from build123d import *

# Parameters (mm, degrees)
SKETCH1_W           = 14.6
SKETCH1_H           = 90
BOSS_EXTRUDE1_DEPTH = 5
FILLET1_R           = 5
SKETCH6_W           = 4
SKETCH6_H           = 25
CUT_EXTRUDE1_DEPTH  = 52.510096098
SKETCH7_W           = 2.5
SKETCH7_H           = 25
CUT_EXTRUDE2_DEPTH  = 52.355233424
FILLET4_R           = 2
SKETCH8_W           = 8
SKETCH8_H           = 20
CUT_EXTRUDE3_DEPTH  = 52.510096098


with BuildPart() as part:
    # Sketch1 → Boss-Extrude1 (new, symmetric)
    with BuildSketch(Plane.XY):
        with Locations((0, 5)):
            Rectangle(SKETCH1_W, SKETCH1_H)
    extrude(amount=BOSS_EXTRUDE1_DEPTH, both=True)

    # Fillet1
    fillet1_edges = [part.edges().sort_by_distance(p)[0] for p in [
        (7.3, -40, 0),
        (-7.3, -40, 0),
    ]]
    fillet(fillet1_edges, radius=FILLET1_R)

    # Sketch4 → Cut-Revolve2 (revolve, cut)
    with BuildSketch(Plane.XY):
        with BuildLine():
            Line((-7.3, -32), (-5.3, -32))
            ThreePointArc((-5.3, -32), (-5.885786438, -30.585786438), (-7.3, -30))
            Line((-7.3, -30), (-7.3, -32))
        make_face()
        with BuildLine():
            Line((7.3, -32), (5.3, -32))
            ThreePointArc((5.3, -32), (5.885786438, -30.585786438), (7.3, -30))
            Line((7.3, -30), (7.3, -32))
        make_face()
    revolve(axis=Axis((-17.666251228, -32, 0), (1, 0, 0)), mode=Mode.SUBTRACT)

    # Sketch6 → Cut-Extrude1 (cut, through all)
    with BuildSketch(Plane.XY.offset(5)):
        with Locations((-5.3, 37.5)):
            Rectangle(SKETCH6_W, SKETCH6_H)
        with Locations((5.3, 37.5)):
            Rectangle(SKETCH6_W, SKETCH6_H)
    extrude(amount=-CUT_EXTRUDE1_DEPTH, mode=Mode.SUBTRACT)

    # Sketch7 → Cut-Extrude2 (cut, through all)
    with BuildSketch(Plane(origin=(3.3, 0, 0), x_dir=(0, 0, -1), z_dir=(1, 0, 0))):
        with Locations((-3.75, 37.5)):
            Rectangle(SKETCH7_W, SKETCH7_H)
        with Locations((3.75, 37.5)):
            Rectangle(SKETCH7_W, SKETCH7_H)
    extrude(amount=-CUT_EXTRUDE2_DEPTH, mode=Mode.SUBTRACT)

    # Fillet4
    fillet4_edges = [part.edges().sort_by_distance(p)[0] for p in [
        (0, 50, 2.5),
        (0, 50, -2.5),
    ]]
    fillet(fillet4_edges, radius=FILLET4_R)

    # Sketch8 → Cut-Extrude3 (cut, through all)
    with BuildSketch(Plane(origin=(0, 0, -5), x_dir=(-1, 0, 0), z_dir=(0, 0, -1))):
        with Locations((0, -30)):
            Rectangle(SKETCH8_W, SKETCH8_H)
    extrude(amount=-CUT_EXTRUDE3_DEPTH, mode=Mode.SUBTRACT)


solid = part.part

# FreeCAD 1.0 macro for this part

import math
import FreeCAD as App
import Part
import Sketcher
Q = App.Units.Quantity


def edges_at(feature, points):
    """Names of the edges that pass closest to the given points."""
    edges = feature.Shape.Edges
    near = lambda p: min(range(len(edges)), key=lambda i: edges[i].distToShape(Part.Vertex(*p))[0])
    return sorted({f"Edge{near(p) + 1}" for p in points})

doc = App.newDocument("Part")
body = doc.addObject("PartDesign::Body", "Body")

sketch1 = body.newObject("Sketcher::SketchObject", "Sketch")
sketch1.AttachmentSupport = (doc.getObject("XY_Plane"), [""])
sketch1.MapMode = "FlatFace"
sketch1.addGeometry(Part.LineSegment(App.Vector(-7.3, 50, 0), App.Vector(-7.3, -40, 0)), False)
sketch1.addGeometry(Part.LineSegment(App.Vector(-7.3, -40, 0), App.Vector(7.3, -40, 0)), False)
sketch1.addGeometry(Part.LineSegment(App.Vector(7.3, -40, 0), App.Vector(7.3, 50, 0)), False)
sketch1.addGeometry(Part.LineSegment(App.Vector(7.3, 50, 0), App.Vector(-7.3, 50, 0)), False)
sketch1.addConstraint(Sketcher.Constraint("Coincident", 0, 2, 1, 1))
sketch1.addConstraint(Sketcher.Constraint("Coincident", 1, 2, 2, 1))
sketch1.addConstraint(Sketcher.Constraint("Coincident", 2, 2, 3, 1))
sketch1.addConstraint(Sketcher.Constraint("Coincident", 3, 2, 0, 1))
sketch1.addConstraint(Sketcher.Constraint("Vertical", 0))
sketch1.addConstraint(Sketcher.Constraint("Horizontal", 1))
sketch1.addConstraint(Sketcher.Constraint("Vertical", 2))
sketch1.addConstraint(Sketcher.Constraint("Horizontal", 3))
sketch1.addConstraint(Sketcher.Constraint("DistanceY", 0, 2, 0, 1, Q("90 mm")))
sketch1.addConstraint(Sketcher.Constraint("DistanceX", 1, 1, 1, 2, Q("14.6 mm")))
sketch1.addConstraint(Sketcher.Constraint("DistanceY", 0, 2, -1, 1, Q("40 mm")))
sketch1.addConstraint(Sketcher.Constraint("DistanceX", 0, 2, -1, 1, Q("7.3 mm")))
pad1 = body.newObject("PartDesign::Pad", "Pad")
pad1.Profile = sketch1
pad1.Length = 10
pad1.Midplane = True
doc.recompute()

fillet = body.newObject("PartDesign::Fillet", "Fillet")
fillet.Base = (pad1, edges_at(pad1, [(7.3, -40, 0), (-7.3, -40, 0)]))
fillet.Radius = 5

sketch2 = body.newObject("Sketcher::SketchObject", "Sketch001")
sketch2.AttachmentSupport = (doc.getObject("XY_Plane"), [""])
sketch2.MapMode = "FlatFace"
sketch2.addGeometry(Part.LineSegment(App.Vector(-7.3, -32, 0), App.Vector(-5.3, -32, 0)), False)
sketch2.addGeometry(Part.ArcOfCircle(Part.Circle(App.Vector(-7.3, -32, 0), App.Vector(0, 0, 1), 2), math.radians(0), math.radians(90)), False)
sketch2.addGeometry(Part.LineSegment(App.Vector(-7.3, -30, 0), App.Vector(-7.3, -32, 0)), False)
sketch2.addGeometry(Part.LineSegment(App.Vector(5.3, -32, 0), App.Vector(7.3, -32, 0)), False)
sketch2.addGeometry(Part.LineSegment(App.Vector(7.3, -32, 0), App.Vector(7.3, -30, 0)), False)
sketch2.addGeometry(Part.ArcOfCircle(Part.Circle(App.Vector(7.3, -32, 0), App.Vector(0, 0, 1), 2), math.radians(90), math.radians(180)), False)
sketch2.addGeometry(Part.LineSegment(App.Vector(-7.3, -32, 0), App.Vector(7.3, -32, 0)), True)
sketch2.addConstraint(Sketcher.Constraint("Coincident", 0, 2, 1, 1))
sketch2.addConstraint(Sketcher.Constraint("Coincident", 1, 2, 2, 1))
sketch2.addConstraint(Sketcher.Constraint("Coincident", 2, 2, 0, 1))
sketch2.addConstraint(Sketcher.Constraint("Coincident", 3, 2, 4, 1))
sketch2.addConstraint(Sketcher.Constraint("Coincident", 4, 2, 5, 1))
sketch2.addConstraint(Sketcher.Constraint("Coincident", 5, 2, 3, 1))
sketch2.addConstraint(Sketcher.Constraint("Horizontal", 0))
sketch2.addConstraint(Sketcher.Constraint("Vertical", 2))
sketch2.addConstraint(Sketcher.Constraint("Horizontal", 3))
sketch2.addConstraint(Sketcher.Constraint("Vertical", 4))
sketch2.addConstraint(Sketcher.Constraint("Horizontal", 6))
sketch2.addConstraint(Sketcher.Constraint("Coincident", 2, 2, 1, 3))
sketch2.addConstraint(Sketcher.Constraint("Coincident", 3, 2, 5, 3))
sketch2.addConstraint(Sketcher.Constraint("Coincident", 6, 1, 1, 3))
sketch2.addConstraint(Sketcher.Constraint("Coincident", 6, 2, 5, 3))
sketch2.addConstraint(Sketcher.Constraint("Equal", 1, 5))
sketch2.addConstraint(Sketcher.Constraint("Radius", 1, Q("2 mm")))
sketch2.addConstraint(Sketcher.Constraint("DistanceX", 6, 1, 6, 2, Q("14.6 mm")))
sketch2.addConstraint(Sketcher.Constraint("DistanceY", 1, 3, -1, 1, Q("32 mm")))
sketch2.addConstraint(Sketcher.Constraint("DistanceX", 1, 3, -1, 1, Q("7.3 mm")))
groove = body.newObject("PartDesign::Groove", "Groove")
groove.Profile = sketch2
groove.ReferenceAxis = (sketch2, ["Axis0"])
groove.Angle = 360

sketch3 = body.newObject("Sketcher::SketchObject", "Sketch002")
sketch3.AttachmentSupport = (doc.getObject("XY_Plane"), [""])
sketch3.MapMode = "FlatFace"
sketch3.AttachmentOffset = App.Placement(App.Vector(0, 0, 5), App.Rotation())
sketch3.addGeometry(Part.LineSegment(App.Vector(-7.3, 50, 0), App.Vector(-7.3, 25, 0)), False)
sketch3.addGeometry(Part.LineSegment(App.Vector(-7.3, 25, 0), App.Vector(-3.3, 25, 0)), False)
sketch3.addGeometry(Part.LineSegment(App.Vector(-3.3, 25, 0), App.Vector(-3.3, 50, 0)), False)
sketch3.addGeometry(Part.LineSegment(App.Vector(-3.3, 50, 0), App.Vector(-7.3, 50, 0)), False)
sketch3.addGeometry(Part.LineSegment(App.Vector(3.3, 50, 0), App.Vector(3.3, 25, 0)), False)
sketch3.addGeometry(Part.LineSegment(App.Vector(3.3, 25, 0), App.Vector(7.3, 25, 0)), False)
sketch3.addGeometry(Part.LineSegment(App.Vector(7.3, 25, 0), App.Vector(7.3, 50, 0)), False)
sketch3.addGeometry(Part.LineSegment(App.Vector(7.3, 50, 0), App.Vector(3.3, 50, 0)), False)
sketch3.addConstraint(Sketcher.Constraint("Coincident", 0, 2, 1, 1))
sketch3.addConstraint(Sketcher.Constraint("Coincident", 1, 2, 2, 1))
sketch3.addConstraint(Sketcher.Constraint("Coincident", 2, 2, 3, 1))
sketch3.addConstraint(Sketcher.Constraint("Coincident", 3, 2, 0, 1))
sketch3.addConstraint(Sketcher.Constraint("Coincident", 4, 2, 5, 1))
sketch3.addConstraint(Sketcher.Constraint("Coincident", 5, 2, 6, 1))
sketch3.addConstraint(Sketcher.Constraint("Coincident", 6, 2, 7, 1))
sketch3.addConstraint(Sketcher.Constraint("Coincident", 7, 2, 4, 1))
sketch3.addConstraint(Sketcher.Constraint("Vertical", 0))
sketch3.addConstraint(Sketcher.Constraint("Horizontal", 1))
sketch3.addConstraint(Sketcher.Constraint("Vertical", 2))
sketch3.addConstraint(Sketcher.Constraint("Horizontal", 3))
sketch3.addConstraint(Sketcher.Constraint("Vertical", 4))
sketch3.addConstraint(Sketcher.Constraint("Horizontal", 5))
sketch3.addConstraint(Sketcher.Constraint("Vertical", 6))
sketch3.addConstraint(Sketcher.Constraint("Horizontal", 7))
sketch3.addConstraint(Sketcher.Constraint("Symmetric", 1, 2, 4, 2, -2))
sketch3.addConstraint(Sketcher.Constraint("Symmetric", 3, 2, 6, 2, -2))
sketch3.addConstraint(Sketcher.Constraint("DistanceX", 1, 1, 1, 2, Q("4 mm")))
sketch3.addConstraint(Sketcher.Constraint("DistanceY", 0, 2, 0, 1, Q("25 mm")))
sketch3.addConstraint(Sketcher.Constraint("DistanceY", -1, 1, 0, 2, Q("25 mm")))
sketch3.addConstraint(Sketcher.Constraint("DistanceX", 0, 2, -1, 1, Q("7.3 mm")))
pocket1 = body.newObject("PartDesign::Pocket", "Pocket")
pocket1.Profile = sketch3
pocket1.Type = "ThroughAll"

sketch4 = body.newObject("Sketcher::SketchObject", "Sketch003")
sketch4.AttachmentSupport = (doc.getObject("YZ_Plane"), [""])
sketch4.MapMode = "FlatFace"
sketch4.AttachmentOffset = App.Placement(App.Vector(0, 0, 3.3), App.Rotation())
sketch4.addGeometry(Part.LineSegment(App.Vector(50, 5, 0), App.Vector(25, 5, 0)), False)
sketch4.addGeometry(Part.LineSegment(App.Vector(25, 5, 0), App.Vector(25, 2.5, 0)), False)
sketch4.addGeometry(Part.LineSegment(App.Vector(25, 2.5, 0), App.Vector(50, 2.5, 0)), False)
sketch4.addGeometry(Part.LineSegment(App.Vector(50, 2.5, 0), App.Vector(50, 5, 0)), False)
sketch4.addGeometry(Part.LineSegment(App.Vector(50, -2.5, 0), App.Vector(25, -2.5, 0)), False)
sketch4.addGeometry(Part.LineSegment(App.Vector(25, -2.5, 0), App.Vector(25, -5, 0)), False)
sketch4.addGeometry(Part.LineSegment(App.Vector(25, -5, 0), App.Vector(50, -5, 0)), False)
sketch4.addGeometry(Part.LineSegment(App.Vector(50, -5, 0), App.Vector(50, -2.5, 0)), False)
sketch4.addConstraint(Sketcher.Constraint("Coincident", 0, 2, 1, 1))
sketch4.addConstraint(Sketcher.Constraint("Coincident", 1, 2, 2, 1))
sketch4.addConstraint(Sketcher.Constraint("Coincident", 2, 2, 3, 1))
sketch4.addConstraint(Sketcher.Constraint("Coincident", 3, 2, 0, 1))
sketch4.addConstraint(Sketcher.Constraint("Coincident", 4, 2, 5, 1))
sketch4.addConstraint(Sketcher.Constraint("Coincident", 5, 2, 6, 1))
sketch4.addConstraint(Sketcher.Constraint("Coincident", 6, 2, 7, 1))
sketch4.addConstraint(Sketcher.Constraint("Coincident", 7, 2, 4, 1))
sketch4.addConstraint(Sketcher.Constraint("Horizontal", 0))
sketch4.addConstraint(Sketcher.Constraint("Vertical", 1))
sketch4.addConstraint(Sketcher.Constraint("Horizontal", 2))
sketch4.addConstraint(Sketcher.Constraint("Vertical", 3))
sketch4.addConstraint(Sketcher.Constraint("Horizontal", 4))
sketch4.addConstraint(Sketcher.Constraint("Vertical", 5))
sketch4.addConstraint(Sketcher.Constraint("Horizontal", 6))
sketch4.addConstraint(Sketcher.Constraint("Vertical", 7))
sketch4.addConstraint(Sketcher.Constraint("Symmetric", 1, 2, 4, 2, -1))
sketch4.addConstraint(Sketcher.Constraint("Symmetric", 3, 2, 6, 2, -1))
sketch4.addConstraint(Sketcher.Constraint("DistanceX", 0, 2, 0, 1, Q("25 mm")))
sketch4.addConstraint(Sketcher.Constraint("DistanceY", 1, 2, 1, 1, Q("2.5 mm")))
sketch4.addConstraint(Sketcher.Constraint("DistanceX", -1, 1, 0, 2, Q("25 mm")))
sketch4.addConstraint(Sketcher.Constraint("DistanceY", -1, 1, 0, 2, Q("5 mm")))
pocket2 = body.newObject("PartDesign::Pocket", "Pocket001")
pocket2.Profile = sketch4
pocket2.Type = "ThroughAll"
doc.recompute()

fillet2 = body.newObject("PartDesign::Fillet", "Fillet001")
fillet2.Base = (pocket2, edges_at(pocket2, [(0, 50, 2.5), (0, 50, -2.5)]))
fillet2.Radius = 2

sketch5 = body.newObject("Sketcher::SketchObject", "Sketch004")
sketch5.AttachmentSupport = (doc.getObject("XY_Plane"), [""])
sketch5.MapMode = "FlatFace"
sketch5.AttachmentOffset = App.Placement(App.Vector(0, 0, -5), App.Rotation())
sketch5.addGeometry(Part.LineSegment(App.Vector(4, -20, 0), App.Vector(4, -40, 0)), False)
sketch5.addGeometry(Part.LineSegment(App.Vector(4, -40, 0), App.Vector(-4, -40, 0)), False)
sketch5.addGeometry(Part.LineSegment(App.Vector(-4, -40, 0), App.Vector(-4, -20, 0)), False)
sketch5.addGeometry(Part.LineSegment(App.Vector(-4, -20, 0), App.Vector(4, -20, 0)), False)
sketch5.addConstraint(Sketcher.Constraint("Coincident", 0, 2, 1, 1))
sketch5.addConstraint(Sketcher.Constraint("Coincident", 1, 2, 2, 1))
sketch5.addConstraint(Sketcher.Constraint("Coincident", 2, 2, 3, 1))
sketch5.addConstraint(Sketcher.Constraint("Coincident", 3, 2, 0, 1))
sketch5.addConstraint(Sketcher.Constraint("Vertical", 0))
sketch5.addConstraint(Sketcher.Constraint("Horizontal", 1))
sketch5.addConstraint(Sketcher.Constraint("Vertical", 2))
sketch5.addConstraint(Sketcher.Constraint("Horizontal", 3))
sketch5.addConstraint(Sketcher.Constraint("DistanceX", 1, 2, 1, 1, Q("8 mm")))
sketch5.addConstraint(Sketcher.Constraint("DistanceY", 0, 2, 0, 1, Q("20 mm")))
sketch5.addConstraint(Sketcher.Constraint("DistanceX", -1, 1, 0, 2, Q("4 mm")))
sketch5.addConstraint(Sketcher.Constraint("DistanceY", 0, 2, -1, 1, Q("40 mm")))
pocket3 = body.newObject("PartDesign::Pocket", "Pocket002")
pocket3.Profile = sketch5
pocket3.Type = "ThroughAll"
pocket3.Reversed = True

doc.recompute()
